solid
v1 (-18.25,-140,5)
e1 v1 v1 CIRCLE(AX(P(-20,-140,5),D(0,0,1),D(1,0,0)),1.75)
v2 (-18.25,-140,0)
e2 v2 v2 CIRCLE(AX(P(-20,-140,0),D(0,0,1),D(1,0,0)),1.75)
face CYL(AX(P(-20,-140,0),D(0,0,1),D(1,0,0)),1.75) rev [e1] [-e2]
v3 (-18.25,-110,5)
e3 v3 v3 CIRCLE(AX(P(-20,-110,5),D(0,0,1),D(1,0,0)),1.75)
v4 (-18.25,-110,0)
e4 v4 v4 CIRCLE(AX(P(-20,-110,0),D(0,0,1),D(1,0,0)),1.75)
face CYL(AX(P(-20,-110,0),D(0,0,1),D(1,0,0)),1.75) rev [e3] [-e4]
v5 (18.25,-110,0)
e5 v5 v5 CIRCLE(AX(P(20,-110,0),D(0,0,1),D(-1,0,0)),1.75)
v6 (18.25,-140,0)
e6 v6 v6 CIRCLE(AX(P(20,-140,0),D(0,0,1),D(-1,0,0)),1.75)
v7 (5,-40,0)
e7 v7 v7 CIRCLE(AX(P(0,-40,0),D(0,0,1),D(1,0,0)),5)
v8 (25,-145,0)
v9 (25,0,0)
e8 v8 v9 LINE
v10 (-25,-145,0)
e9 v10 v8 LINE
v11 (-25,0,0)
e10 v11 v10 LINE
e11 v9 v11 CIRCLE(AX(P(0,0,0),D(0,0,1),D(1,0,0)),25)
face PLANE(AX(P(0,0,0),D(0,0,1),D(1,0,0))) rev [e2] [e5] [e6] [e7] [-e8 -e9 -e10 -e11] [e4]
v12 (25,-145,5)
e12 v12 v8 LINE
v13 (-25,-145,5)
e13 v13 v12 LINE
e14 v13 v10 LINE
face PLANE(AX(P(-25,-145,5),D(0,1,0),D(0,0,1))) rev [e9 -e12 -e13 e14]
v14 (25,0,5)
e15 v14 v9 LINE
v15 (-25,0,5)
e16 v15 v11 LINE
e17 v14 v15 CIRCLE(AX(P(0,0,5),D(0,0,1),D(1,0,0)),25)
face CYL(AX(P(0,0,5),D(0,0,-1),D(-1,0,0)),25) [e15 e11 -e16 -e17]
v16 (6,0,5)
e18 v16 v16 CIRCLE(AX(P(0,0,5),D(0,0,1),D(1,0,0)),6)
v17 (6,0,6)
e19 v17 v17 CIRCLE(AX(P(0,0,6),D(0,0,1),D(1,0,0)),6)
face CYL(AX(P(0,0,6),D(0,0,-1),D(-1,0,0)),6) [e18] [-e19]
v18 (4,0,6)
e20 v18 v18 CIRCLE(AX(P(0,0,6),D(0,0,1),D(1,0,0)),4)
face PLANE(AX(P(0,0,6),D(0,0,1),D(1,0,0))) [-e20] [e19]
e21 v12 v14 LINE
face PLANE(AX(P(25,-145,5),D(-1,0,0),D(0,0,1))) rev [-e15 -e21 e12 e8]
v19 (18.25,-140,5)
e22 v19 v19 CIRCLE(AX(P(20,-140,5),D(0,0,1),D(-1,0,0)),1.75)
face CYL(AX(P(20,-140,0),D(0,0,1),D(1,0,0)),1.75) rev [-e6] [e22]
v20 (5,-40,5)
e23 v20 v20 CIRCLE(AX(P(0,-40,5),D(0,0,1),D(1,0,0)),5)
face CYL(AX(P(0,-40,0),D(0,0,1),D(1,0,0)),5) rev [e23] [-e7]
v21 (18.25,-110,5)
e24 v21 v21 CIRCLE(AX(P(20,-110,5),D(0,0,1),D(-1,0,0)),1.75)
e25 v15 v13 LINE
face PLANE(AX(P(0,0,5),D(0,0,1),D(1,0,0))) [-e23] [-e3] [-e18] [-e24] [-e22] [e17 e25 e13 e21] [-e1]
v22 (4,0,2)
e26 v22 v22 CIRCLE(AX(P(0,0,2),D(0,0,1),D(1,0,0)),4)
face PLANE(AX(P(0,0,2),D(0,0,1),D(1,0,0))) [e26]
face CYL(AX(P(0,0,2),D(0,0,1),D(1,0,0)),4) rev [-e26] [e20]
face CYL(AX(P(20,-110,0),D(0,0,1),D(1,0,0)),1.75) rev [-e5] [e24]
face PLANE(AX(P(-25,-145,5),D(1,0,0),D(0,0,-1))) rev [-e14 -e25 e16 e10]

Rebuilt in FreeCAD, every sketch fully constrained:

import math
import FreeCAD as App
import Part
import Sketcher
from FreeCAD import Vector
Q = App.Units.Quantity

doc = App.newDocument("Part")
body = doc.addObject("PartDesign::Body", "Body")

# Sketch on XY plane
sketch1 = body.newObject("Sketcher::SketchObject", "Sketch")
sketch1.AttachmentSupport = (doc.getObject("XY_Plane"), [""])
sketch1.MapMode = "FlatFace"
sketch1.addGeometry([
    Part.LineSegment(Vector(-25, -145, 0), Vector(25, -145, 0)),
    Part.LineSegment(Vector(25, -145, 0), Vector(25, 0, 0)),
    Part.ArcOfCircle(Part.Circle(Vector(0, 0, 0), Vector(0, 0, 1), 25), math.radians(0), math.radians(180)),
    Part.LineSegment(Vector(-25, 0, 0), Vector(-25, -145, 0)),
], False)
sketch1.addConstraint([
    Sketcher.Constraint("Coincident", 0, 2, 1, 1),
    Sketcher.Constraint("Tangent", 1, 2, 2, 1),
    Sketcher.Constraint("Tangent", 2, 2, 3, 1),
    Sketcher.Constraint("Coincident", 3, 2, 0, 1),
    Sketcher.Constraint("Horizontal", 0),
    Sketcher.Constraint("Vertical", 1),
    Sketcher.Constraint("Vertical", 3),
    Sketcher.Constraint("Coincident", 2, 3, -1, 1),
    Sketcher.Constraint("Radius", 2, Q("25 mm")),
    Sketcher.Constraint("DistanceY", 1, 1, 1, 2, Q("145 mm")),
])
pad1 = body.newObject("PartDesign::Pad", "Pad")
pad1.Profile = sketch1
pad1.Length = 5

# Sketch on XY plane
sketch2 = body.newObject("Sketcher::SketchObject", "Sketch001")
sketch2.AttachmentSupport = (doc.getObject("XY_Plane"), [""])
sketch2.MapMode = "FlatFace"
sketch2.AttachmentOffset = App.Placement(Vector(0, 0, 5), App.Rotation())
sketch2.addGeometry(Part.Circle(Vector(0, 0, 0), Vector(0, 0, 1), 4), False)
sketch2.addConstraint([
    Sketcher.Constraint("Coincident", 0, 3, -1, 1),
    Sketcher.Constraint("Diameter", 0, Q("8 mm")),
])
pocket1 = body.newObject("PartDesign::Pocket", "Pocket")
pocket1.Profile = sketch2
pocket1.Length = 3

# Sketch on XY plane
sketch3 = body.newObject("Sketcher::SketchObject", "Sketch002")
sketch3.AttachmentSupport = (doc.getObject("XY_Plane"), [""])
sketch3.MapMode = "FlatFace"
sketch3.AttachmentOffset = App.Placement(Vector(0, 0, 6), App.Rotation())
sketch3.addGeometry([
    Part.Circle(Vector(0, 0, 0), Vector(0, 0, 1), 6),
    Part.Circle(Vector(0, 0, 0), Vector(0, 0, 1), 4),
], False)
sketch3.addConstraint([
    Sketcher.Constraint("Coincident", 0, 3, -1, 1),
    Sketcher.Constraint("Coincident", 1, 3, -1, 1),
    Sketcher.Constraint("Diameter", 0, Q("12 mm")),
    Sketcher.Constraint("Diameter", 1, Q("8 mm")),
])
pad2 = body.newObject("PartDesign::Pad", "Pad001")
pad2.Profile = sketch3
pad2.Length = 1
pad2.Reversed = True

# Sketch on XY plane
sketch4 = body.newObject("Sketcher::SketchObject", "Sketch003")
sketch4.AttachmentSupport = (doc.getObject("XY_Plane"), [""])
sketch4.MapMode = "FlatFace"
sketch4.AttachmentOffset = App.Placement(Vector(0, 0, 5), App.Rotation())
sketch4.addGeometry([
    Part.Circle(Vector(-20, -140, 0), Vector(0, 0, 1), 1.8),
    Part.Circle(Vector(-20, -110, 0), Vector(0, 0, 1), 1.8),
    Part.Circle(Vector(20, -110, 0), Vector(0, 0, 1), 1.8),
    Part.Circle(Vector(20, -140, 0), Vector(0, 0, 1), 1.8),
], False)
sketch4.addConstraint([
    Sketcher.Constraint("Equal", 0, 1),
    Sketcher.Constraint("Equal", 1, 2),
    Sketcher.Constraint("Equal", 2, 3),
    Sketcher.Constraint("Symmetric", 1, 3, 2, 3, -2),
    Sketcher.Constraint("Symmetric", 0, 3, 3, 3, -2),
    Sketcher.Constraint("Vertical", 0, 3, 1, 3),
    Sketcher.Constraint("Diameter", 0, Q("3.5 mm")),
    Sketcher.Constraint("DistanceX", 0, 3, -1, 1, Q("20 mm")),
    Sketcher.Constraint("DistanceY", 0, 3, -1, 1, Q("140 mm")),
    Sketcher.Constraint("DistanceY", 1, 3, -1, 1, Q("110 mm")),
])
pocket2 = body.newObject("PartDesign::Pocket", "Pocket001")
pocket2.Profile = sketch4
pocket2.Type = "ThroughAll"

# Sketch on XY plane
sketch5 = body.newObject("Sketcher::SketchObject", "Sketch004")
sketch5.AttachmentSupport = (doc.getObject("XY_Plane"), [""])
sketch5.MapMode = "FlatFace"
sketch5.AttachmentOffset = App.Placement(Vector(0, 0, 5), App.Rotation())
sketch5.addGeometry(Part.Circle(Vector(0, -40, 0), Vector(0, 0, 1), 5), False)
sketch5.addConstraint([
    Sketcher.Constraint("PointOnObject", 0, 3, -2),
    Sketcher.Constraint("Diameter", 0, Q("10 mm")),
    Sketcher.Constraint("DistanceY", 0, 3, -1, 1, Q("40 mm")),
])
pocket3 = body.newObject("PartDesign::Pocket", "Pocket002")
pocket3.Profile = sketch5
pocket3.Type = "ThroughAll"

doc.recompute()
